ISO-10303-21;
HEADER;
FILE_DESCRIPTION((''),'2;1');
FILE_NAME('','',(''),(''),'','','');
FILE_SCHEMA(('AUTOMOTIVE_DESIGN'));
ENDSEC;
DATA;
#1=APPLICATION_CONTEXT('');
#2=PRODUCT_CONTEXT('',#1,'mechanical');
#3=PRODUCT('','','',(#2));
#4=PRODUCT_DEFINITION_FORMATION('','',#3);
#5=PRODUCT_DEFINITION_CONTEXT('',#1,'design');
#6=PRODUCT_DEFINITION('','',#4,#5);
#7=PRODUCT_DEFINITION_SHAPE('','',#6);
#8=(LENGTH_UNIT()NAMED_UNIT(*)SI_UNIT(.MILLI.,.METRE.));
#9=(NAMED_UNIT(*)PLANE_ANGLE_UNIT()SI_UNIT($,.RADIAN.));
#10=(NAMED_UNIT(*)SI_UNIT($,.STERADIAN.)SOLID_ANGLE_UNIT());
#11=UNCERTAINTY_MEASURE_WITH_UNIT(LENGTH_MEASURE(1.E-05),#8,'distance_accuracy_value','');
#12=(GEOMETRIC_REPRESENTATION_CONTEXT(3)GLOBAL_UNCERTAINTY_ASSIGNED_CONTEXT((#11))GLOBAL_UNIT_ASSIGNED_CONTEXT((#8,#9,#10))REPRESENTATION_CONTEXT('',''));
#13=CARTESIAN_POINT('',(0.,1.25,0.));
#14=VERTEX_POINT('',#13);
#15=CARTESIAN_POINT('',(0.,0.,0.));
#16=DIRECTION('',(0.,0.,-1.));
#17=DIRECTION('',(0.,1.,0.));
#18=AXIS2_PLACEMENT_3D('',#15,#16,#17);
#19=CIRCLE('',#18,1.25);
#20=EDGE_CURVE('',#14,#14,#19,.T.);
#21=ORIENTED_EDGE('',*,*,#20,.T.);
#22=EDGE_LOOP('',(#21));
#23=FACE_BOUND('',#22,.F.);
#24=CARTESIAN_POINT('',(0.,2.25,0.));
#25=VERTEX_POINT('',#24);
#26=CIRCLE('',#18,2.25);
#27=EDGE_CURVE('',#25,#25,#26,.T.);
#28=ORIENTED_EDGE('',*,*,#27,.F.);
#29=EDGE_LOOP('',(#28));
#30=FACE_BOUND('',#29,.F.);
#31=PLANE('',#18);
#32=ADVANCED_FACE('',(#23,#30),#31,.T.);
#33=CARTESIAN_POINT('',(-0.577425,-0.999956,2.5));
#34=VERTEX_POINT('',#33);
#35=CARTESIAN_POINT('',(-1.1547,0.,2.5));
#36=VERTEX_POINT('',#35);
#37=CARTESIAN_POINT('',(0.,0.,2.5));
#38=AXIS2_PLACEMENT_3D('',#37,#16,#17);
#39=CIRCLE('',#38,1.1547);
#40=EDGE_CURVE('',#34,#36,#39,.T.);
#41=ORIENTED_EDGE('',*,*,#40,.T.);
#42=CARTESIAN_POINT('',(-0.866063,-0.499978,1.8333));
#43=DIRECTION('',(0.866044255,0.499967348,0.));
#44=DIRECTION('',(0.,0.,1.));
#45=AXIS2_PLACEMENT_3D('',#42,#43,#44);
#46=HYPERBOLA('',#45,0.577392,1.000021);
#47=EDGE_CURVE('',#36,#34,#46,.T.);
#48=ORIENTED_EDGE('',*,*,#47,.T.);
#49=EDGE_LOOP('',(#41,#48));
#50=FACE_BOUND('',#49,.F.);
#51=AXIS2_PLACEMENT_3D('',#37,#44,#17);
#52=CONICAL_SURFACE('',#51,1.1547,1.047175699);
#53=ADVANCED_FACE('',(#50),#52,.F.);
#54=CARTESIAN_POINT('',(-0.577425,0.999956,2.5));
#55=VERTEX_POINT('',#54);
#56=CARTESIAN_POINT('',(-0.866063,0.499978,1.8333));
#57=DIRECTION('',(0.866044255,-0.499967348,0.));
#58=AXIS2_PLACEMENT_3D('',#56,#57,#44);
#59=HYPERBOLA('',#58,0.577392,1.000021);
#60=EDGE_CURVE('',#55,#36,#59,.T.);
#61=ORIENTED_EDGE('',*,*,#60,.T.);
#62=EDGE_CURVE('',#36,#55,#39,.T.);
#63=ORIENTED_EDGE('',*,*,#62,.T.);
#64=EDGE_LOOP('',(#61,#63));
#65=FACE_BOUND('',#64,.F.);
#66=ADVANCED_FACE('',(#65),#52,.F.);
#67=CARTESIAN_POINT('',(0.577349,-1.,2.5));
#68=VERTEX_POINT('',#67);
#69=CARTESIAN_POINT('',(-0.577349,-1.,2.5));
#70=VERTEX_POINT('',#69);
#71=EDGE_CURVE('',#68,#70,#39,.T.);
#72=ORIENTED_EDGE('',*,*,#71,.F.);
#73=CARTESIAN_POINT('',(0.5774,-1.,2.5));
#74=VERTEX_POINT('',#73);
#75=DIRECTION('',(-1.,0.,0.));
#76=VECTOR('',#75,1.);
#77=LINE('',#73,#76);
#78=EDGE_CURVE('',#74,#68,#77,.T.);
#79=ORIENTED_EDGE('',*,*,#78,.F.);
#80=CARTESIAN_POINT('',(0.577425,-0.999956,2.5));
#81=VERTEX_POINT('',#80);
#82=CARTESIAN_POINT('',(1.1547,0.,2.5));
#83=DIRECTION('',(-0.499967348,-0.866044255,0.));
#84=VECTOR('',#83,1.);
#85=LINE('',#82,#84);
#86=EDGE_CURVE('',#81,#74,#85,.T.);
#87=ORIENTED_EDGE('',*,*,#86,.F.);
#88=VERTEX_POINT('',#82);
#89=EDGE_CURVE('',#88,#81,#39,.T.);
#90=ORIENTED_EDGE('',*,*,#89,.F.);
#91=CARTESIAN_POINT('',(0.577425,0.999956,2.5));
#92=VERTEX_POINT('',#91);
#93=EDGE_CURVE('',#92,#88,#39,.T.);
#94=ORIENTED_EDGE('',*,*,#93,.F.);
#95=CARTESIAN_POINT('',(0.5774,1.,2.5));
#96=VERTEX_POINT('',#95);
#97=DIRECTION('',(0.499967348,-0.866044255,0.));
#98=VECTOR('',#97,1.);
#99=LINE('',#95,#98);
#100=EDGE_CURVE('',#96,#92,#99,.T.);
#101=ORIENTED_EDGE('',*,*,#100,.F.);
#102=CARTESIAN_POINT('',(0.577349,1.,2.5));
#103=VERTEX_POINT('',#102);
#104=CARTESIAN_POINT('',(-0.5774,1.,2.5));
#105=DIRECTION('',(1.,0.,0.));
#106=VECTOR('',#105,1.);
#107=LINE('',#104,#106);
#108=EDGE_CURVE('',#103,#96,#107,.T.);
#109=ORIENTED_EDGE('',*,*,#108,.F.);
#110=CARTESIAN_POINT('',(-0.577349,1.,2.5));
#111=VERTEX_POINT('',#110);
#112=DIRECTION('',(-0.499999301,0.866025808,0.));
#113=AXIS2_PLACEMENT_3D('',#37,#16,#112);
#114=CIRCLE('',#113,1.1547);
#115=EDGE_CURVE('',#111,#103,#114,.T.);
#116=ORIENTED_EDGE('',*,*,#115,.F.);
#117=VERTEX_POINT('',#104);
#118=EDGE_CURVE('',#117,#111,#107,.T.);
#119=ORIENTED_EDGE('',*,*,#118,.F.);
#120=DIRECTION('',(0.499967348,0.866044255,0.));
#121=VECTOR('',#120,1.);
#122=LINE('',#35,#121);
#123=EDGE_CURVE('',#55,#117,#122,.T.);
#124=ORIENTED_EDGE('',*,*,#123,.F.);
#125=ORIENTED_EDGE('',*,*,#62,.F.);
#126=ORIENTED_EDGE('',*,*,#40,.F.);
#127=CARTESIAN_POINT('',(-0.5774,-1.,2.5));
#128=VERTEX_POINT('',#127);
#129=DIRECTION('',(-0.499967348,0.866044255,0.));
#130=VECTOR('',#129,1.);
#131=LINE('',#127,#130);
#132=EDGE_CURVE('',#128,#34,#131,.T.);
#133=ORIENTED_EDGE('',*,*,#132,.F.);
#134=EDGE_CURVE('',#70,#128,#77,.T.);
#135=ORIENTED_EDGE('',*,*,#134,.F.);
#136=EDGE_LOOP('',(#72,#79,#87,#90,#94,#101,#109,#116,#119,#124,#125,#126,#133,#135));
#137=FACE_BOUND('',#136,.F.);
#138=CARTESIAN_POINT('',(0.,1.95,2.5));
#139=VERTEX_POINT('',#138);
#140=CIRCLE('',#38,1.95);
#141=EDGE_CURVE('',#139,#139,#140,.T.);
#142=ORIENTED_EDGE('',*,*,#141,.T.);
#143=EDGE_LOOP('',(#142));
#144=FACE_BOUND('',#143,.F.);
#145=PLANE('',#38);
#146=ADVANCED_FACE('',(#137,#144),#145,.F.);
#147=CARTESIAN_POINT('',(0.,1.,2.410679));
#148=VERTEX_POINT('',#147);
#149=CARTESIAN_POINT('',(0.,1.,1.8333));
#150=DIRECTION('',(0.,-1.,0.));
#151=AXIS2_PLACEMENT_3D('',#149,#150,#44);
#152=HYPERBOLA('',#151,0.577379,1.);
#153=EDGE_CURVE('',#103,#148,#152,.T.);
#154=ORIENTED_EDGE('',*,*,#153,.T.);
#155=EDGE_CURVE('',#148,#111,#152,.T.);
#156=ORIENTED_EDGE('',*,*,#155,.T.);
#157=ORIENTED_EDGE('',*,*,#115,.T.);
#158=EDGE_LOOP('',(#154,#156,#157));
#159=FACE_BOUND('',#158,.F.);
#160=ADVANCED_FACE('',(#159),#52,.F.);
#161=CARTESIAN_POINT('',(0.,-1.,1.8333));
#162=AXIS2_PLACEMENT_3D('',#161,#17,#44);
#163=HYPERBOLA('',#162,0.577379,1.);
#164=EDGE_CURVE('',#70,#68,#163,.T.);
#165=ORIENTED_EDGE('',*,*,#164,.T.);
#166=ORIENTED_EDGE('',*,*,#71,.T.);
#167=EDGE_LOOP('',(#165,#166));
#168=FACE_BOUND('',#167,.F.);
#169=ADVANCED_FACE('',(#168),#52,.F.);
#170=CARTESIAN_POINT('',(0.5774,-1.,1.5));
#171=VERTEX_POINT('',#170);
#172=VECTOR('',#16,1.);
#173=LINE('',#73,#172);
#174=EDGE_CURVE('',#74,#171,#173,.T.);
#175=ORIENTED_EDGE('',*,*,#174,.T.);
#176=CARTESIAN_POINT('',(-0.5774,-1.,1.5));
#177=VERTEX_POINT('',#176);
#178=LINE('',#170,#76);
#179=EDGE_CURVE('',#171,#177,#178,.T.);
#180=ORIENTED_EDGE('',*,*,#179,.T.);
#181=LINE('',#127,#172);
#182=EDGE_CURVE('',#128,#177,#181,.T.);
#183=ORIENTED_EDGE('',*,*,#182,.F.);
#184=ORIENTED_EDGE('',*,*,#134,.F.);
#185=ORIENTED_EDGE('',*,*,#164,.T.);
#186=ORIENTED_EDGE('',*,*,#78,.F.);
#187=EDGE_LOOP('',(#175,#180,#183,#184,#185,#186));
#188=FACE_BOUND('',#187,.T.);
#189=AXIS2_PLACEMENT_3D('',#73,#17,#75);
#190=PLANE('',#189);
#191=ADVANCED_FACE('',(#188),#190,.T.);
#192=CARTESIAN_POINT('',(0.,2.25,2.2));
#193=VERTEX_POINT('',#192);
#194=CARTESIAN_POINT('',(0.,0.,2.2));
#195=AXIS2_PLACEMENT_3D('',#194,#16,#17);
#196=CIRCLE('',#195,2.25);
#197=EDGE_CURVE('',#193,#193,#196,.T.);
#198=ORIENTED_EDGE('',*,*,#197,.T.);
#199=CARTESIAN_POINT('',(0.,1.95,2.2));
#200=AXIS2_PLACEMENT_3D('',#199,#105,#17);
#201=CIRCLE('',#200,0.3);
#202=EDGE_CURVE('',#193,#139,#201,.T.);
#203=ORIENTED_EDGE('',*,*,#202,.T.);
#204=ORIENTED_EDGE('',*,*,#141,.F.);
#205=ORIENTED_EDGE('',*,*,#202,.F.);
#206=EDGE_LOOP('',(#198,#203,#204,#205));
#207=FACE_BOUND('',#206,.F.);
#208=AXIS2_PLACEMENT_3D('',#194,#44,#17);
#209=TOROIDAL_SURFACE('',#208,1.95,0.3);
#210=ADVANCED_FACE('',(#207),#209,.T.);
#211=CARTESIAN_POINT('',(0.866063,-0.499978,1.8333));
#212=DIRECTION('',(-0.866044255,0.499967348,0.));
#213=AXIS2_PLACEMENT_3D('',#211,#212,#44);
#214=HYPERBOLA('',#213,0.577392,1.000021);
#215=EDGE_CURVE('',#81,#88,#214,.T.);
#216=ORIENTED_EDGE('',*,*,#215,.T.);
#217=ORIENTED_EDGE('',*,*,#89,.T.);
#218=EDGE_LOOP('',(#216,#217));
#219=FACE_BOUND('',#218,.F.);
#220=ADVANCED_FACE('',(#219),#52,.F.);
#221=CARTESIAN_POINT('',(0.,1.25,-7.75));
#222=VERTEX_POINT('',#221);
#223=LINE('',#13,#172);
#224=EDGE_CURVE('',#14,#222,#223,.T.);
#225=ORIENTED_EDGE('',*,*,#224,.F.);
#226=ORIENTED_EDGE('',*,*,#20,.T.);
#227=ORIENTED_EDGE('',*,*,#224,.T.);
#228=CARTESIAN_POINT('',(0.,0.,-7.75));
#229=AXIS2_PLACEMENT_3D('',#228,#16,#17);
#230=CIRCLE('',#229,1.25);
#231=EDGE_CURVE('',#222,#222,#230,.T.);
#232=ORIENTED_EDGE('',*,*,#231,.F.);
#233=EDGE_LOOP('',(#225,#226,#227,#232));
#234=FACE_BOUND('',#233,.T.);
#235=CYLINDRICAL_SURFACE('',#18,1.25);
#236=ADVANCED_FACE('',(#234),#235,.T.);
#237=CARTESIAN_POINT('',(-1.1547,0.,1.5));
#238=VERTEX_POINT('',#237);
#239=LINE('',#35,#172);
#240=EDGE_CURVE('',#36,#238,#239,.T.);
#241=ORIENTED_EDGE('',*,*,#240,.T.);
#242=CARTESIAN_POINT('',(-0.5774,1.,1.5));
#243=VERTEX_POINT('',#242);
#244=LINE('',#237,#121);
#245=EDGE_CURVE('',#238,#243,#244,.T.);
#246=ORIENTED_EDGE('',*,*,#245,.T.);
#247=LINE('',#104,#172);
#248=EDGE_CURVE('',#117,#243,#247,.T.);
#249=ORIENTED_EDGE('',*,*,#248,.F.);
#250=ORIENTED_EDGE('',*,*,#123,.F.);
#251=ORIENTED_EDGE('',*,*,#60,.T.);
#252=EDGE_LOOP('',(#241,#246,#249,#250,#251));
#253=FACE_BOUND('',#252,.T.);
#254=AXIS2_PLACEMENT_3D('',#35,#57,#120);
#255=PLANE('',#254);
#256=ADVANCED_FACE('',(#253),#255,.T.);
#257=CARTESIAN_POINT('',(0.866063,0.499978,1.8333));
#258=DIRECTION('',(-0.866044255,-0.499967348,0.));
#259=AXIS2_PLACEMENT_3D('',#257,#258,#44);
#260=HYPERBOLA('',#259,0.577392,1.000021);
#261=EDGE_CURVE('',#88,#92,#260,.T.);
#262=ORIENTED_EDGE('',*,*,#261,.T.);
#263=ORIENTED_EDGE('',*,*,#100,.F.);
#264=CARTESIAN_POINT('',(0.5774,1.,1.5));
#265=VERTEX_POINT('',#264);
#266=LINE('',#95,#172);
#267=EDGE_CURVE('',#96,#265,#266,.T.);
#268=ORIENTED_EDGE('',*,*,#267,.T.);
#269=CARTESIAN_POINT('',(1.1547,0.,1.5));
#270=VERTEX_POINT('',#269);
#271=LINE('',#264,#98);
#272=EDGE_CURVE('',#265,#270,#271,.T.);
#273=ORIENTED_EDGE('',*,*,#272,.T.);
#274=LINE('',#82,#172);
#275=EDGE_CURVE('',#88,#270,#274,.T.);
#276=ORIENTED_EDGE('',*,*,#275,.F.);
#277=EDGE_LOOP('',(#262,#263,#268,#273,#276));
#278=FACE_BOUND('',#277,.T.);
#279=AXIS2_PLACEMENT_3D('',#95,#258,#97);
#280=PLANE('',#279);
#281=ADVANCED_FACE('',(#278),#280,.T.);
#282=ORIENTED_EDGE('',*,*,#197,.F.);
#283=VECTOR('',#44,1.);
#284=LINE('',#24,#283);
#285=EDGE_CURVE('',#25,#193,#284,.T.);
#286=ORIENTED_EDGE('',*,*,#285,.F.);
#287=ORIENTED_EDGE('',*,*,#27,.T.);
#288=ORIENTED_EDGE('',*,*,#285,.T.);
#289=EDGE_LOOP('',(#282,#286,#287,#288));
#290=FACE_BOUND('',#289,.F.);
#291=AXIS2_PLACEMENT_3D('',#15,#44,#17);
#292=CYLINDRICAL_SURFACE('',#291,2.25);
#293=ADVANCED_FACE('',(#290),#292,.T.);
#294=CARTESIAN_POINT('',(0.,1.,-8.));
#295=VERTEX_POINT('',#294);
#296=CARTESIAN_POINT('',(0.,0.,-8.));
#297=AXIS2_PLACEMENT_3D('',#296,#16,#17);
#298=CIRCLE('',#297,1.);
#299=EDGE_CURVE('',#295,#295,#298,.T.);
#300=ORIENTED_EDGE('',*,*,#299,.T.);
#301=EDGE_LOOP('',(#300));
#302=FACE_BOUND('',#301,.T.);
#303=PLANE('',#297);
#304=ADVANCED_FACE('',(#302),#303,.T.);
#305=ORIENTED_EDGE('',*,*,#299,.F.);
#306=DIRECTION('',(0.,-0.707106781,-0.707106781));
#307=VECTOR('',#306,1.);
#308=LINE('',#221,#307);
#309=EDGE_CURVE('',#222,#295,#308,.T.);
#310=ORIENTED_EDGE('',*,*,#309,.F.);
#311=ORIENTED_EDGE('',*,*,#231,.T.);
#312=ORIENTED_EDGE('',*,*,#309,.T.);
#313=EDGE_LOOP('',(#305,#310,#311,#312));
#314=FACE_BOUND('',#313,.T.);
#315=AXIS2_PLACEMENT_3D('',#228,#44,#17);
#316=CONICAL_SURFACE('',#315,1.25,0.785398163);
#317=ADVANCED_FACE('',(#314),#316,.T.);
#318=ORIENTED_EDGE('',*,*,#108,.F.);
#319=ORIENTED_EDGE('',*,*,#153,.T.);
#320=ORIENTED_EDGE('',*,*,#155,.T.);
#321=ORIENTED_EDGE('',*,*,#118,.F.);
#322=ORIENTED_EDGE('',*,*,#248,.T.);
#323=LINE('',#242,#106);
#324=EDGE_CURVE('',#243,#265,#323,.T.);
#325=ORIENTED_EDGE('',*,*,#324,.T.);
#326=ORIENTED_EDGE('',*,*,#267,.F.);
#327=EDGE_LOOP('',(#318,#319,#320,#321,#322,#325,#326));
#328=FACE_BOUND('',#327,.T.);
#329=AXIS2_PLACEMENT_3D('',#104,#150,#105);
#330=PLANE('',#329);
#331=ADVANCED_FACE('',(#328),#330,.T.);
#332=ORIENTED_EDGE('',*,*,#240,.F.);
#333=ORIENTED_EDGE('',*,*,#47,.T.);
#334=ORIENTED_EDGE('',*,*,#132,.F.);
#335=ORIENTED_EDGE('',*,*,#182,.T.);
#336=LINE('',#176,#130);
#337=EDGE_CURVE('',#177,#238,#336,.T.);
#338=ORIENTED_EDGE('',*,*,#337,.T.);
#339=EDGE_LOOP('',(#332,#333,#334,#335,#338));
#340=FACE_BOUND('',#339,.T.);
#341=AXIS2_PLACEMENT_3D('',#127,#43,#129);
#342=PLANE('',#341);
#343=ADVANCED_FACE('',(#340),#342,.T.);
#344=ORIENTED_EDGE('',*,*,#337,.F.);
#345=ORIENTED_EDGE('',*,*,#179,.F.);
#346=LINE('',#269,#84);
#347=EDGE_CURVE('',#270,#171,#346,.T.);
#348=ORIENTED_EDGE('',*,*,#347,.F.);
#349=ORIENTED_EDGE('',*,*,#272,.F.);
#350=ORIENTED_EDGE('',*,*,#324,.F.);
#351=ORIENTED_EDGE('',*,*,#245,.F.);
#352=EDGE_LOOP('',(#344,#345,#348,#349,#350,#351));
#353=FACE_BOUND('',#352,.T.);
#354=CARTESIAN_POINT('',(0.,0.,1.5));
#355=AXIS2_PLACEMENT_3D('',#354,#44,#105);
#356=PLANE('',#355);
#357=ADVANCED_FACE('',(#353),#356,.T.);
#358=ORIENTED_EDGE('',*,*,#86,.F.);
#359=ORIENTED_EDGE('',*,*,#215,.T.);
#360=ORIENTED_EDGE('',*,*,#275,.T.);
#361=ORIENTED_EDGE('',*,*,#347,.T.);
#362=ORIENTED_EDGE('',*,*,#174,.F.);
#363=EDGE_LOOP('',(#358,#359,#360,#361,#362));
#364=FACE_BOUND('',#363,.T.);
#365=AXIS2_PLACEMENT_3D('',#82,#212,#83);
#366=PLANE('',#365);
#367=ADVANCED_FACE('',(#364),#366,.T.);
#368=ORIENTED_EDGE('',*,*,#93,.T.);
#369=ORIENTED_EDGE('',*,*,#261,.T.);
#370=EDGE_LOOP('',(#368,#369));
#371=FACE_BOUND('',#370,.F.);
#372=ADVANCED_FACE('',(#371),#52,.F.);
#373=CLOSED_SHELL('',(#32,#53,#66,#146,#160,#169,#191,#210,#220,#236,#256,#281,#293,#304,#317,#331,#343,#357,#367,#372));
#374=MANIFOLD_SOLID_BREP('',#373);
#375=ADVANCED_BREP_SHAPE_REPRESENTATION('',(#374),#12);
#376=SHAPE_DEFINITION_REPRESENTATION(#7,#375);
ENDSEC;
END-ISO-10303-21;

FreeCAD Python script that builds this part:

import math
import FreeCAD as App
import Part
import Sketcher
Q = App.Units.Quantity


def edges_at(feature, points):
    """Names of the edges that pass closest to the given points."""
    edges = feature.Shape.Edges
    near = lambda p: min(range(len(edges)), key=lambda i: edges[i].distToShape(Part.Vertex(*p))[0])
    return sorted({f"Edge{near(p) + 1}" for p in points})

doc = App.newDocument("Part")
params = doc.addObject("Spreadsheet::Sheet", "Params")
for row, (alias, value) in enumerate([
    ("sketch1_radius", "0.3 mm"),
    ("sketch1_height", "8 mm"),
    ("sketch1_width", "1 mm"),
    ("sketch1_width2", "1.25 mm"),
    ("revolution_angle", "360 deg"),
    ("pocket1_length", "1 mm"),
    ("chamfer_size", "0.25 mm"),
], start=1):
    params.set(f"A{row}", alias)
    params.set(f"B{row}", "=" + value)
    params.setAlias(f"B{row}", alias)

body = doc.addObject("PartDesign::Body", "Body")

sketch1 = body.newObject("Sketcher::SketchObject", "Sketch")
sketch1.AttachmentSupport = (doc.getObject("YZ_Plane"), [""])
sketch1.MapMode = "FlatFace"
sketch1.addGeometry([
    Part.LineSegment(App.Vector(1.25, 0, 0), App.Vector(2.25, 0, 0)),
    Part.LineSegment(App.Vector(2.25, 0, 0), App.Vector(2.25, 2.2, 0)),
    Part.ArcOfCircle(Part.Circle(App.Vector(1.95, 2.2, 0), App.Vector(0, 0, 1), 0.3), math.radians(0), math.radians(90)),
    Part.LineSegment(App.Vector(1.95, 2.5, 0), App.Vector(1.15, 2.5, 0)),
    Part.LineSegment(App.Vector(1.15, 2.5, 0), App.Vector(0, 1.83, 0)),
    Part.LineSegment(App.Vector(0, 1.83, 0), App.Vector(0, -8, 0)),
    Part.LineSegment(App.Vector(0, -8, 0), App.Vector(1.25, -8, 0)),
    Part.LineSegment(App.Vector(1.25, -8, 0), App.Vector(1.25, 0, 0)),
], False)
sketch1.addConstraint([
    Sketcher.Constraint("Coincident", 0, 2, 1, 1),
    Sketcher.Constraint("Tangent", 1, 2, 2, 1),
    Sketcher.Constraint("Tangent", 2, 2, 3, 1),
    Sketcher.Constraint("Coincident", 3, 2, 4, 1),
    Sketcher.Constraint("Coincident", 4, 2, 5, 1),
    Sketcher.Constraint("Coincident", 5, 2, 6, 1),
    Sketcher.Constraint("Coincident", 6, 2, 7, 1),
    Sketcher.Constraint("Coincident", 7, 2, 0, 1),
    Sketcher.Constraint("Horizontal", 0),
    Sketcher.Constraint("Vertical", 1),
    Sketcher.Constraint("Horizontal", 3),
    Sketcher.Constraint("Vertical", 5),
    Sketcher.Constraint("Horizontal", 6),
    Sketcher.Constraint("Vertical", 7),
    Sketcher.Constraint("PointOnObject", 0, 2, -1),
    Sketcher.Constraint("PointOnObject", 4, 2, -2),
    Sketcher.Constraint("Radius", 2, Q("0.3 mm")),
    Sketcher.Constraint("DistanceY", 7, 1, 7, 2, Q("8 mm")),
    Sketcher.Constraint("DistanceY", -1, 1, 2, 2, Q("2.5 mm")),
    Sketcher.Constraint("DistanceX", 0, 1, 0, 2, Q("1 mm")),
    Sketcher.Constraint("DistanceX", 6, 1, 6, 2, Q("1.25 mm")),
    Sketcher.Constraint("DistanceX", 3, 2, 3, 1, Q("0.7953 mm")),
    Sketcher.Constraint("DistanceY", 5, 2, 5, 1, Q("9.8333 mm")),
])
sketch1.setExpression("Constraints[16]", "Params.sketch1_radius")
sketch1.setExpression("Constraints[17]", "Params.sketch1_height")
sketch1.setExpression("Constraints[19]", "Params.sketch1_width")
sketch1.setExpression("Constraints[20]", "Params.sketch1_width2")
revolution = body.newObject("PartDesign::Revolution", "Revolution")
revolution.Profile = sketch1
revolution.ReferenceAxis = (sketch1, ["V_Axis"])
revolution.setExpression("Angle", "Params.revolution_angle")

sketch2 = body.newObject("Sketcher::SketchObject", "Sketch001")
sketch2.AttachmentSupport = (doc.getObject("XY_Plane"), [""])
sketch2.MapMode = "FlatFace"
sketch2.AttachmentOffset = App.Placement(App.Vector(0, 0, 2.5), App.Rotation())
sketch2.addGeometry([
    Part.LineSegment(App.Vector(0.6, -1, 0), App.Vector(1.2, 0, 0)),
    Part.LineSegment(App.Vector(1.2, 0, 0), App.Vector(0.6, 1, 0)),
    Part.LineSegment(App.Vector(0.6, 1, 0), App.Vector(-0.6, 1, 0)),
    Part.LineSegment(App.Vector(-0.6, 1, 0), App.Vector(-1.2, 0, 0)),
    Part.LineSegment(App.Vector(-1.2, 0, 0), App.Vector(-0.6, -1, 0)),
    Part.LineSegment(App.Vector(-0.6, -1, 0), App.Vector(0.6, -1, 0)),
], False)
sketch2.addConstraint([
    Sketcher.Constraint("Coincident", 0, 2, 1, 1),
    Sketcher.Constraint("Coincident", 1, 2, 2, 1),
    Sketcher.Constraint("Coincident", 2, 2, 3, 1),
    Sketcher.Constraint("Coincident", 3, 2, 4, 1),
    Sketcher.Constraint("Coincident", 4, 2, 5, 1),
    Sketcher.Constraint("Coincident", 5, 2, 0, 1),
    Sketcher.Constraint("Horizontal", 2),
    Sketcher.Constraint("Horizontal", 5),
    Sketcher.Constraint("Symmetric", 0, 2, 3, 2, -1, 1),
    Sketcher.Constraint("Symmetric", 1, 2, 4, 2, -1, 1),
    Sketcher.Constraint("PointOnObject", 0, 2, -1),
    Sketcher.Constraint("Parallel", 0, 3),
    Sketcher.Constraint("Vertical", 2, 2, 4, 2),
    Sketcher.Constraint("DistanceY", 4, 2, 2, 2, Q("2 mm")),
    Sketcher.Constraint("DistanceX", 2, 2, 2, 1, Q("1.1548 mm")),
    Sketcher.Constraint("DistanceX", 2, 2, 0, 2, Q("1.732 mm")),
])
pocket1 = body.newObject("PartDesign::Pocket", "Pocket")
pocket1.Profile = sketch2
pocket1.setExpression("Length", "Params.pocket1_length")
doc.recompute()

chamfer = body.newObject("PartDesign::Chamfer", "Chamfer")
chamfer.Base = (pocket1, edges_at(pocket1, [(0, -1.25, -8)]))
chamfer.setExpression("Size", "Params.chamfer_size")

doc.recompute()
